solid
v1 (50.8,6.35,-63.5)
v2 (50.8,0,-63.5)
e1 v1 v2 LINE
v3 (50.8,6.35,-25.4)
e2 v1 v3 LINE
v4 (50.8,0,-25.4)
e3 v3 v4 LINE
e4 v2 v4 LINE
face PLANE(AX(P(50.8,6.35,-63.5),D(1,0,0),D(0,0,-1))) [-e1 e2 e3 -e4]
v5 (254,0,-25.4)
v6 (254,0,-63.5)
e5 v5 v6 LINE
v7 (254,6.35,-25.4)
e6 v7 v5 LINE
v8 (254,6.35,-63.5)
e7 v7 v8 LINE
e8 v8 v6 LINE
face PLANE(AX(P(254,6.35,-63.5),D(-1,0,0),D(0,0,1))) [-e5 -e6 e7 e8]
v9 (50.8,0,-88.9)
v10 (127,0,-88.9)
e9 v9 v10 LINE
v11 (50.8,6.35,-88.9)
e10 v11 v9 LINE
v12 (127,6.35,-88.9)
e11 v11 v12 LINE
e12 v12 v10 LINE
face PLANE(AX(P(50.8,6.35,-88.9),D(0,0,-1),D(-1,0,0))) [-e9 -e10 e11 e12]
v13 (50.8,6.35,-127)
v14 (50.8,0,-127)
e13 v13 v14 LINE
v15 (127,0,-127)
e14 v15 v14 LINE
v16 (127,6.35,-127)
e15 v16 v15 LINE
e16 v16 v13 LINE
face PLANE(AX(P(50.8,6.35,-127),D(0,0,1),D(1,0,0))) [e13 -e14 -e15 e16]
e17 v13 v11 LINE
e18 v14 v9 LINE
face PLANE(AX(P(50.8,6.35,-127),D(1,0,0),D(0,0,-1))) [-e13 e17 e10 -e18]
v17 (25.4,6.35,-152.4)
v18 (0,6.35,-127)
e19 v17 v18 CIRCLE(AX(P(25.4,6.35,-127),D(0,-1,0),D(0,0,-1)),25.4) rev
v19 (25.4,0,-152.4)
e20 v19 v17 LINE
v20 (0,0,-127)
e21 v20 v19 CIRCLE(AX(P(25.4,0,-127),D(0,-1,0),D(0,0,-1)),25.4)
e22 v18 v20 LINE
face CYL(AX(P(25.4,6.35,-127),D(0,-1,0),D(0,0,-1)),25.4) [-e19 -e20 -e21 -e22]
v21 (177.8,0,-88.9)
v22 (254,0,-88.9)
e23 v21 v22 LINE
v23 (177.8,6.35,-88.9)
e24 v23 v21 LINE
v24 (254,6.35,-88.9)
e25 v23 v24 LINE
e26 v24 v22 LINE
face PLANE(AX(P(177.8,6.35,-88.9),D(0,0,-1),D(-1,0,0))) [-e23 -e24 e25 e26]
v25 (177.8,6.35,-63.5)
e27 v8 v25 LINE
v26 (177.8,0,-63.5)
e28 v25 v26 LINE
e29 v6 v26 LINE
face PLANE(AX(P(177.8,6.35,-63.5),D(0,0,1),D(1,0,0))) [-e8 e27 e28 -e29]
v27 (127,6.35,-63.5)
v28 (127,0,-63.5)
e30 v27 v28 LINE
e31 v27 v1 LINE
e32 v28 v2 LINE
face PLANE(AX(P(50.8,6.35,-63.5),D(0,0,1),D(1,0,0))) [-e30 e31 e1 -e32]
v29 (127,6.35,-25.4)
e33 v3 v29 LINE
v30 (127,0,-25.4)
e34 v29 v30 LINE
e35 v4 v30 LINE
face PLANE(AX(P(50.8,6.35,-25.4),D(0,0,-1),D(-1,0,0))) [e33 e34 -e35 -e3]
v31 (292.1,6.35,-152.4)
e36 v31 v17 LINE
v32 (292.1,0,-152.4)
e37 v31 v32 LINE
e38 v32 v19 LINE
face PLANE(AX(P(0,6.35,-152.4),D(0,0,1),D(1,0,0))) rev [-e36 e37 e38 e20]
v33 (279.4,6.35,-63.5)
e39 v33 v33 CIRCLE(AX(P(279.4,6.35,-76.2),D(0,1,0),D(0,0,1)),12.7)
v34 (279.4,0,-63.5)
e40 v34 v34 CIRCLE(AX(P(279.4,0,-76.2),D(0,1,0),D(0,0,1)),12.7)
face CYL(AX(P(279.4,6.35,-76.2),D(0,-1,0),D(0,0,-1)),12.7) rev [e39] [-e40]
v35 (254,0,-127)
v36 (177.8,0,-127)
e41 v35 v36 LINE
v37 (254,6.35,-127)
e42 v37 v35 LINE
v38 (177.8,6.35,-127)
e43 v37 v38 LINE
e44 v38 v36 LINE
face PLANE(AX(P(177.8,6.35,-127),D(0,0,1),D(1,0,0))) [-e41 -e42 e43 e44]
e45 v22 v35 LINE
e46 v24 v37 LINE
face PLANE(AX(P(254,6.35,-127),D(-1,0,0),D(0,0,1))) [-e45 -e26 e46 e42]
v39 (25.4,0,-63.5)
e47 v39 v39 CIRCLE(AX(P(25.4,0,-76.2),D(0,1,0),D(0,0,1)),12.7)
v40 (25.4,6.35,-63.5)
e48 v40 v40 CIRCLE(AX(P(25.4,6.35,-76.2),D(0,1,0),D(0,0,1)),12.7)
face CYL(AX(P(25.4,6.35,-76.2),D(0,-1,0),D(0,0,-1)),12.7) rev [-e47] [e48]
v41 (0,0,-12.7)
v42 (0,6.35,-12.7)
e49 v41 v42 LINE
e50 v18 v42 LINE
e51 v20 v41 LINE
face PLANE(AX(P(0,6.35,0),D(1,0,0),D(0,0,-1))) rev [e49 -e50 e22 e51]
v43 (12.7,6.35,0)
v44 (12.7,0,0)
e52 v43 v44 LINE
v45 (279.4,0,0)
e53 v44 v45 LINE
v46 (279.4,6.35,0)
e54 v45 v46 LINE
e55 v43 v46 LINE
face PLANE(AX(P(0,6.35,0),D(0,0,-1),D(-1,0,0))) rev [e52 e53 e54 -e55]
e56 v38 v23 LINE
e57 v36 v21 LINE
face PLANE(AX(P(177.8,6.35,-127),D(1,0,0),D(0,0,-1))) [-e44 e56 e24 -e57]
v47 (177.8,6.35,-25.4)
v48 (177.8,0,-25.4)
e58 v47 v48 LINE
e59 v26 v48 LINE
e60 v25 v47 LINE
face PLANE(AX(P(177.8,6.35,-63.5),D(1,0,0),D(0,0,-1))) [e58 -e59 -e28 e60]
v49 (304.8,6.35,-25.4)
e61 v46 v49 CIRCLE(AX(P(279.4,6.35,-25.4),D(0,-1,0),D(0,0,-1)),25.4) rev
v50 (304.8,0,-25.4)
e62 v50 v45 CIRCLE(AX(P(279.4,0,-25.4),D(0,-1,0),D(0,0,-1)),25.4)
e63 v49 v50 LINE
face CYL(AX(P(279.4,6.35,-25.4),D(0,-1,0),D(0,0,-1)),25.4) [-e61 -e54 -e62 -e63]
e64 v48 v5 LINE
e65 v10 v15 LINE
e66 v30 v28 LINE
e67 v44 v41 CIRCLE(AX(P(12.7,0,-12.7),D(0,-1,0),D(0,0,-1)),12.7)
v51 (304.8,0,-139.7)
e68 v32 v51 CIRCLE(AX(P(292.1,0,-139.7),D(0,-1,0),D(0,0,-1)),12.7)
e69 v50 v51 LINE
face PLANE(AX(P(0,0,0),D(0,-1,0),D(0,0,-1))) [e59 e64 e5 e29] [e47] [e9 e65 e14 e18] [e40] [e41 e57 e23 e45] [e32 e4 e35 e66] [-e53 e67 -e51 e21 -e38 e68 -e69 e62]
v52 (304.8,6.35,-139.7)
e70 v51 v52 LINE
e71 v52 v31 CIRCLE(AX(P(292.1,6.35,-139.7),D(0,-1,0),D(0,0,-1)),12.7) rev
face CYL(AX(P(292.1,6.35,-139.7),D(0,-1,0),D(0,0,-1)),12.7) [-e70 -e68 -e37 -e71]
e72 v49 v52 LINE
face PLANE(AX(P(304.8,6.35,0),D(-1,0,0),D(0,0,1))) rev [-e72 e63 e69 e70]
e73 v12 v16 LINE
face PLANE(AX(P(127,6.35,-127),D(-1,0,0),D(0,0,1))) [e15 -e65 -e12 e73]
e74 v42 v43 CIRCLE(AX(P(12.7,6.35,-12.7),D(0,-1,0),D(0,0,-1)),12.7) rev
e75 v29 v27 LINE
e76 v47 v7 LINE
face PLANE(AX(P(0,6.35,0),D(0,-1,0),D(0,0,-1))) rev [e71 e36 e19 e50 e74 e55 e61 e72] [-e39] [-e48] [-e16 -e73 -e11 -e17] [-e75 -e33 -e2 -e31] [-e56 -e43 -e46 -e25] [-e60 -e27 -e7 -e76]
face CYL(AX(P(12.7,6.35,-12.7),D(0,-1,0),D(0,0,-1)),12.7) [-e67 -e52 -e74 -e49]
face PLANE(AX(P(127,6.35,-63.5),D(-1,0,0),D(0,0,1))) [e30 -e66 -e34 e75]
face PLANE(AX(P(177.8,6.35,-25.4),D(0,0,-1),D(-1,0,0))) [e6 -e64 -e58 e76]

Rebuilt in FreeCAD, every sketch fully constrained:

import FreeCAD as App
import Part
import Sketcher
from FreeCAD import Vector
Q = App.Units.Quantity


def edges_at(feature, points):
    """Names of the edges that pass closest to the given points."""
    edges = feature.Shape.Edges
    near = lambda p: min(range(len(edges)), key=lambda i: edges[i].distToShape(Part.Vertex(*p))[0])
    return sorted({f"Edge{near(p) + 1}" for p in points})


def add_polygon(sketch, points):
    """Adds a closed chain of lines whose ends are joined by coincident constraints."""
    first, n = sketch.GeometryCount, len(points)
    for a, b in zip(points, points[1:] + points[:1]):
        sketch.addGeometry(Part.LineSegment(App.Vector(*a, 0), App.Vector(*b, 0)), False)
    for i in range(n):
        sketch.addConstraint(Sketcher.Constraint("Coincident", first + i, 2, first + (i + 1) % n, 1))

doc = App.newDocument("Part")
body = doc.addObject("PartDesign::Body", "Body")

sketch1 = doc.addObject("Sketcher::SketchObject", "Sketch")
body.addObject(sketch1)
sketch1.AttachmentSupport = (doc.XZ_Plane, [""])
sketch1.MapMode = "FlatFace"
add_polygon(sketch1, [(0, -152), (0, 0), (305, 0), (305, -152)])
add_polygon(sketch1, [(127, -25), (51, -25), (51, -64), (127, -64)])
sketch1.addGeometry(Part.Circle(Vector(25, -76, 0), Vector(0, 0, 1), 13), False)
add_polygon(sketch1, [(254, -25), (178, -25), (178, -64), (254, -64)])
sketch1.addGeometry(Part.Circle(Vector(279, -76, 0), Vector(0, 0, 1), 13), False)
add_polygon(sketch1, [(127, -89), (51, -89), (51, -127), (127, -127)])
add_polygon(sketch1, [(254, -89), (178, -89), (178, -127), (254, -127)])
sketch1.addConstraint(Sketcher.Constraint("Vertical", 0))
sketch1.addConstraint(Sketcher.Constraint("Horizontal", 1))
sketch1.addConstraint(Sketcher.Constraint("Vertical", 2))
sketch1.addConstraint(Sketcher.Constraint("Horizontal", 3))
sketch1.addConstraint(Sketcher.Constraint("Horizontal", 4))
sketch1.addConstraint(Sketcher.Constraint("Vertical", 5))
sketch1.addConstraint(Sketcher.Constraint("Horizontal", 6))
sketch1.addConstraint(Sketcher.Constraint("Vertical", 7))
sketch1.addConstraint(Sketcher.Constraint("Horizontal", 9))
sketch1.addConstraint(Sketcher.Constraint("Vertical", 10))
sketch1.addConstraint(Sketcher.Constraint("Horizontal", 11))
sketch1.addConstraint(Sketcher.Constraint("Vertical", 12))
sketch1.addConstraint(Sketcher.Constraint("Horizontal", 14))
sketch1.addConstraint(Sketcher.Constraint("Vertical", 15))
sketch1.addConstraint(Sketcher.Constraint("Horizontal", 16))
sketch1.addConstraint(Sketcher.Constraint("Vertical", 17))
sketch1.addConstraint(Sketcher.Constraint("Horizontal", 18))
sketch1.addConstraint(Sketcher.Constraint("Vertical", 19))
sketch1.addConstraint(Sketcher.Constraint("Horizontal", 20))
sketch1.addConstraint(Sketcher.Constraint("Vertical", 21))
sketch1.addConstraint(Sketcher.Constraint("Coincident", 0, 2, -1, 1))
sketch1.addConstraint(Sketcher.Constraint("Equal", 8, 13))
sketch1.addConstraint(Sketcher.Constraint("Horizontal", 8, 3, 13, 3))
sketch1.addConstraint(Sketcher.Constraint("Horizontal", 7, 2, 9, 2))
sketch1.addConstraint(Sketcher.Constraint("Horizontal", 6, 2, 10, 2))
sketch1.addConstraint(Sketcher.Constraint("Horizontal", 17, 2, 18, 2))
sketch1.addConstraint(Sketcher.Constraint("Horizontal", 16, 2, 19, 2))
sketch1.addConstraint(Sketcher.Constraint("Vertical", 5, 2, 14, 2))
sketch1.addConstraint(Sketcher.Constraint("Vertical", 7, 2, 16, 2))
sketch1.addConstraint(Sketcher.Constraint("Vertical", 10, 2, 18, 2))
sketch1.addConstraint(Sketcher.Constraint("Vertical", 12, 2, 20, 2))
sketch1.addConstraint(Sketcher.Constraint("Equal", 6, 9))
sketch1.addConstraint(Sketcher.Constraint("Equal", 12, 15))
sketch1.addConstraint(Sketcher.Constraint("Diameter", 8, Q("1 in")))
sketch1.addConstraint(Sketcher.Constraint("DistanceX", 1, 1, 1, 2, Q("12 in")))
sketch1.addConstraint(Sketcher.Constraint("DistanceX", 4, 2, 4, 1, Q("3 in")))
sketch1.addConstraint(Sketcher.Constraint("DistanceY", 0, 1, 0, 2, Q("6 in")))
sketch1.addConstraint(Sketcher.Constraint("DistanceY", 5, 2, 5, 1, Q("1.5 in")))
sketch1.addConstraint(Sketcher.Constraint("DistanceX", -1, 1, 8, 3, Q("1 in")))
sketch1.addConstraint(Sketcher.Constraint("DistanceY", 8, 3, -1, 1, Q("3 in")))
sketch1.addConstraint(Sketcher.Constraint("DistanceX", -1, 1, 13, 3, Q("11 in")))
sketch1.addConstraint(Sketcher.Constraint("DistanceX", -1, 1, 4, 2, Q("2 in")))
sketch1.addConstraint(Sketcher.Constraint("DistanceY", 4, 2, -1, 1, Q("1 in")))
sketch1.addConstraint(Sketcher.Constraint("DistanceX", -1, 1, 9, 2, Q("7 in")))
sketch1.addConstraint(Sketcher.Constraint("DistanceY", 15, 2, -1, 1, Q("5 in")))
pad1 = doc.addObject("PartDesign::Pad", "Pad")
body.addObject(pad1)
pad1.Profile = sketch1
pad1.Length = Q("0.25 in")
pad1.Reversed = True
doc.recompute()

fillet = doc.addObject("PartDesign::Fillet", "Fillet")
body.addObject(fillet)
fillet.Base = (pad1, edges_at(pad1, [(0, 3.175, -152.4), (304.8, 3.175, 0)]))
fillet.Radius = Q("1 in")
doc.recompute()

fillet2 = doc.addObject("PartDesign::Fillet", "Fillet001")
body.addObject(fillet2)
fillet2.Base = (fillet, edges_at(fillet, [(304.8, 3.175, -152.4), (0, 3.175, 0)]))
fillet2.Radius = Q("0.5 in")

doc.recompute()
